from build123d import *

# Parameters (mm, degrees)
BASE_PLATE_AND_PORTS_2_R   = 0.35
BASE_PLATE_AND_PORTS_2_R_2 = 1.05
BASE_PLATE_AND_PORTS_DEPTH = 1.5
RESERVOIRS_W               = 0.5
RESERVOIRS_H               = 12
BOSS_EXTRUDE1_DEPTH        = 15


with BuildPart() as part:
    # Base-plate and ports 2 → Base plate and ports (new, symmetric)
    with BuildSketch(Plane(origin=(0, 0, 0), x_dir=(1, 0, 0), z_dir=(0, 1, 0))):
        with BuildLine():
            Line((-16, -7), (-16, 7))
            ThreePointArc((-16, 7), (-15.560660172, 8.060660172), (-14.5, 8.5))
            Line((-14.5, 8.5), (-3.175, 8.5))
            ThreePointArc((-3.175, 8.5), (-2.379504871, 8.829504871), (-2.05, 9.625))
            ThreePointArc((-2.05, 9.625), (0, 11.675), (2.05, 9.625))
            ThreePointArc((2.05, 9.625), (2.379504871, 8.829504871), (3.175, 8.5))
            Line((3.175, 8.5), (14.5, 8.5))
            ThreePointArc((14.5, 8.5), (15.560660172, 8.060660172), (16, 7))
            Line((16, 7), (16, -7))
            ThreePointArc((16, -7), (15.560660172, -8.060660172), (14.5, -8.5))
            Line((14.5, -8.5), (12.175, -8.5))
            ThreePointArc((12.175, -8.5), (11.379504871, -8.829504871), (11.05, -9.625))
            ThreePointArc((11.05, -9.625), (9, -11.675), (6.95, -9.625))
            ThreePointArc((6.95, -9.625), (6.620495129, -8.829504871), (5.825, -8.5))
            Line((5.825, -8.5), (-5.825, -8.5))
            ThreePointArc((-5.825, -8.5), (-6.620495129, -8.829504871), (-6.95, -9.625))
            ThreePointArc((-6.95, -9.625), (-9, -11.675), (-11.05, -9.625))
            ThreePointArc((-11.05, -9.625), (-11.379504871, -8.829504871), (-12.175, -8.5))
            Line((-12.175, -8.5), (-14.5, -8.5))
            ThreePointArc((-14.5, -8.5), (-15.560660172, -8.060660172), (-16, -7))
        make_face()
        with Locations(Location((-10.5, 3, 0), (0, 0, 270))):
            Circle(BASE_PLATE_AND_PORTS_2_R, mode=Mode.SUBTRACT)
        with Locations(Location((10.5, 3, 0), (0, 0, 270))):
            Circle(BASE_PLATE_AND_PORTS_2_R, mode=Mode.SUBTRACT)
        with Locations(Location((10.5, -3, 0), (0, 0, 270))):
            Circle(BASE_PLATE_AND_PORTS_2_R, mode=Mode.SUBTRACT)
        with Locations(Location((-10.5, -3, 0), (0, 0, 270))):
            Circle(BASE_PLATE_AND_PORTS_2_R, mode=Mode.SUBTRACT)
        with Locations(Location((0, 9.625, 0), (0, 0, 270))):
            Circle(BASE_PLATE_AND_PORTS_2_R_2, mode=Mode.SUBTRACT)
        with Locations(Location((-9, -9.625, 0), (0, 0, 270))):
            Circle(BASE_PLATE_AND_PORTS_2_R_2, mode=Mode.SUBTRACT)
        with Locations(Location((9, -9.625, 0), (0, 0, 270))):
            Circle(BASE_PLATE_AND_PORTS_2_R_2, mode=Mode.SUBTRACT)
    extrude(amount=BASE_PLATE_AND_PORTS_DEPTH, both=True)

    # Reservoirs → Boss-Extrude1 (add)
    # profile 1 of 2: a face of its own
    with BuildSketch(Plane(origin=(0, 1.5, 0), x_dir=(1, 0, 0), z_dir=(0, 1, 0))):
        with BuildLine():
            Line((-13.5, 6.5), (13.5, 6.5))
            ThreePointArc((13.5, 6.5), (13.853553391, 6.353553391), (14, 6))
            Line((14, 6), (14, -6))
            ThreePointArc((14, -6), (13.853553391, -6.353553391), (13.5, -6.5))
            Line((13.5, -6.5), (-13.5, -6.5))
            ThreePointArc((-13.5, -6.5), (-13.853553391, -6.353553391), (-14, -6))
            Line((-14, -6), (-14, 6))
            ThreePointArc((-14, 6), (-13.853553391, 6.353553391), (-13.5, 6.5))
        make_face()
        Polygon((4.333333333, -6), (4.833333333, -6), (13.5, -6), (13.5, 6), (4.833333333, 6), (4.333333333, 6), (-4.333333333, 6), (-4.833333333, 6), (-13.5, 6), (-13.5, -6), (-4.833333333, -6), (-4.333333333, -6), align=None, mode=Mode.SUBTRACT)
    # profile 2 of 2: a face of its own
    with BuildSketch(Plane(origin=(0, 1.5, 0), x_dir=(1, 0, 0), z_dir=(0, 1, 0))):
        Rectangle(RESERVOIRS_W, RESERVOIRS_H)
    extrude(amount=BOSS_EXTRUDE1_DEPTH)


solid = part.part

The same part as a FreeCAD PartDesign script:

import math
import FreeCAD as App
import Part
import Sketcher


def add_polygon(sketch, points):
    """Adds a closed chain of lines whose ends are joined by coincident constraints."""
    first, n = sketch.GeometryCount, len(points)
    for a, b in zip(points, points[1:] + points[:1]):
        sketch.addGeometry(Part.LineSegment(App.Vector(*a, 0), App.Vector(*b, 0)), False)
    for i in range(n):
        sketch.addConstraint(Sketcher.Constraint("Coincident", first + i, 2, first + (i + 1) % n, 1))

doc = App.newDocument("Part")
params = doc.addObject("Spreadsheet::Sheet", "Params")
for row, (alias, value) in enumerate([
    ("sketch1_diameter", "2.1 mm"),
    ("sketch1_diameter2", "0.7 mm"),
    ("sketch1_radius", "1.5 mm"),
    ("sketch1_height", "14 mm"),
    ("sketch1_radius2", "2.05 mm"),
    ("pad1_length", "3 mm"),
    ("sketch2_radius", "0.5 mm"),
    ("sketch2_width", "27 mm"),
    ("sketch2_height", "12 mm"),
    ("sketch2_width2", "13.25 mm"),
    ("pad2_length", "15 mm"),
], start=1):
    params.set(f"A{row}", alias)
    params.set(f"B{row}", "=" + value)
    params.setAlias(f"B{row}", alias)

body = doc.addObject("PartDesign::Body", "Body")

sketch1 = body.newObject("Sketcher::SketchObject", "Sketch")
sketch1.AttachmentSupport = (doc.getObject("XZ_Plane"), [""])
sketch1.MapMode = "FlatFace"
sketch1.addGeometry([
    Part.LineSegment(App.Vector(-16, -7, 0), App.Vector(-16, 7, 0)),
    Part.ArcOfCircle(Part.Circle(App.Vector(-14.5, 7, 0), App.Vector(0, 0, 1), 1.5), math.radians(90), math.radians(180)),
    Part.LineSegment(App.Vector(-14.5, 8.5, 0), App.Vector(-12.18, 8.5, 0)),
    Part.ArcOfCircle(Part.Circle(App.Vector(-12.17, 9.62, 0), App.Vector(0, 0, 1), 1.12), math.radians(-90), math.radians(0)),
    Part.ArcOfCircle(Part.Circle(App.Vector(-9, 9.62, 0), App.Vector(0, 0, 1), 2.05), math.radians(0), math.radians(180)),
    Part.ArcOfCircle(Part.Circle(App.Vector(-5.83, 9.62, 0), App.Vector(0, 0, 1), 1.12), math.radians(180), math.radians(270)),
    Part.LineSegment(App.Vector(-5.83, 8.5, 0), App.Vector(5.83, 8.5, 0)),
    Part.ArcOfCircle(Part.Circle(App.Vector(5.83, 9.62, 0), App.Vector(0, 0, 1), 1.12), math.radians(-90), math.radians(0)),
    Part.ArcOfCircle(Part.Circle(App.Vector(9, 9.62, 0), App.Vector(0, 0, 1), 2.05), math.radians(0), math.radians(180)),
    Part.ArcOfCircle(Part.Circle(App.Vector(12.17, 9.62, 0), App.Vector(0, 0, 1), 1.12), math.radians(180), math.radians(270)),
    Part.LineSegment(App.Vector(12.18, 8.5, 0), App.Vector(14.5, 8.5, 0)),
    Part.ArcOfCircle(Part.Circle(App.Vector(14.5, 7, 0), App.Vector(0, 0, 1), 1.5), math.radians(0), math.radians(90)),
    Part.LineSegment(App.Vector(16, 7, 0), App.Vector(16, -7, 0)),
    Part.ArcOfCircle(Part.Circle(App.Vector(14.5, -7, 0), App.Vector(0, 0, 1), 1.5), math.radians(-90), math.radians(0)),
    Part.LineSegment(App.Vector(14.5, -8.5, 0), App.Vector(3.17, -8.5, 0)),
    Part.ArcOfCircle(Part.Circle(App.Vector(3.17, -9.62, 0), App.Vector(0, 0, 1), 1.12), math.radians(90), math.radians(180)),
    Part.ArcOfCircle(Part.Circle(App.Vector(0, -9.62, 0), App.Vector(0, 0, 1), 2.05), math.radians(180), math.radians(360)),
    Part.ArcOfCircle(Part.Circle(App.Vector(-3.17, -9.62, 0), App.Vector(0, 0, 1), 1.12), math.radians(0), math.radians(90)),
    Part.LineSegment(App.Vector(-3.17, -8.5, 0), App.Vector(-14.5, -8.5, 0)),
    Part.ArcOfCircle(Part.Circle(App.Vector(-14.5, -7, 0), App.Vector(0, 0, 1), 1.5), math.radians(180), math.radians(270)),
    Part.Circle(App.Vector(9, 9.62, 0), App.Vector(0, 0, 1), 1.05),
    Part.Circle(App.Vector(10.5, 3, 0), App.Vector(0, 0, 1), 0.35),
    Part.Circle(App.Vector(-9, 9.62, 0), App.Vector(0, 0, 1), 1.05),
    Part.Circle(App.Vector(-10.5, 3, 0), App.Vector(0, 0, 1), 0.35),
    Part.Circle(App.Vector(10.5, -3, 0), App.Vector(0, 0, 1), 0.35),
    Part.Circle(App.Vector(-10.5, -3, 0), App.Vector(0, 0, 1), 0.35),
    Part.Circle(App.Vector(0, -9.62, 0), App.Vector(0, 0, 1), 1.05),
], False)
sketch1.addConstraint([
    Sketcher.Constraint("Tangent", 0, 2, 1, 2),
    Sketcher.Constraint("Tangent", 1, 1, 2, 1),
    Sketcher.Constraint("Tangent", 2, 2, 3, 1),
    Sketcher.Constraint("Tangent", 3, 2, 4, 2),
    Sketcher.Constraint("Tangent", 4, 1, 5, 1),
    Sketcher.Constraint("Tangent", 5, 2, 6, 1),
    Sketcher.Constraint("Tangent", 6, 2, 7, 1),
    Sketcher.Constraint("Tangent", 7, 2, 8, 2),
    Sketcher.Constraint("Tangent", 8, 1, 9, 1),
    Sketcher.Constraint("Tangent", 9, 2, 10, 1),
    Sketcher.Constraint("Tangent", 10, 2, 11, 2),
    Sketcher.Constraint("Tangent", 11, 1, 12, 1),
    Sketcher.Constraint("Tangent", 12, 2, 13, 2),
    Sketcher.Constraint("Tangent", 13, 1, 14, 1),
    Sketcher.Constraint("Tangent", 14, 2, 15, 1),
    Sketcher.Constraint("Tangent", 15, 2, 16, 2),
    Sketcher.Constraint("Tangent", 16, 1, 17, 1),
    Sketcher.Constraint("Tangent", 17, 2, 18, 1),
    Sketcher.Constraint("Tangent", 18, 2, 19, 2),
    Sketcher.Constraint("Tangent", 19, 1, 0, 1),
    Sketcher.Constraint("Vertical", 0),
    Sketcher.Constraint("Horizontal", 2),
    Sketcher.Constraint("Horizontal", 6),
    Sketcher.Constraint("Horizontal", 10),
    Sketcher.Constraint("Vertical", 12),
    Sketcher.Constraint("Horizontal", 14),
    Sketcher.Constraint("Horizontal", 18),
    Sketcher.Constraint("Coincident", 20, 3, 8, 3),
    Sketcher.Constraint("Coincident", 22, 3, 4, 3),
    Sketcher.Constraint("Coincident", 26, 3, 16, 3),
    Sketcher.Constraint("Equal", 3, 5),
    Sketcher.Constraint("Equal", 5, 7),
    Sketcher.Constraint("Equal", 4, 8),
    Sketcher.Constraint("Equal", 7, 9),
    Sketcher.Constraint("Equal", 1, 11),
    Sketcher.Constraint("Equal", 11, 13),
    Sketcher.Constraint("Equal", 9, 15),
    Sketcher.Constraint("Equal", 8, 16),
    Sketcher.Constraint("Equal", 15, 17),
    Sketcher.Constraint("Equal", 13, 19),
    Sketcher.Constraint("Equal", 20, 22),
    Sketcher.Constraint("Equal", 21, 23),
    Sketcher.Constraint("Equal", 23, 24),
    Sketcher.Constraint("Equal", 24, 25),
    Sketcher.Constraint("Equal", 22, 26),
    Sketcher.Constraint("Symmetric", 1, 3, 13, 3, -1, 1),
    Sketcher.Constraint("Symmetric", 23, 3, 24, 3, -1, 1),
    Sketcher.Constraint("Symmetric", 21, 3, 25, 3, -1, 1),
    Sketcher.Constraint("Symmetric", 4, 3, 8, 3, -2),
    Sketcher.Constraint("Symmetric", 15, 3, 17, 3, -2),
    Sketcher.Constraint("Symmetric", 21, 3, 23, 3, -2),
    Sketcher.Constraint("Horizontal", 3, 3, 4, 3),
    Sketcher.Constraint("Horizontal", 4, 3, 5, 3),
    Sketcher.Constraint("Horizontal", 8, 3, 9, 3),
    Sketcher.Constraint("Horizontal", 15, 3, 16, 3),
    Sketcher.Constraint("Diameter", 20, 2.1),
    Sketcher.Constraint("Diameter", 21, 0.7),
    Sketcher.Constraint("Radius", 1, 1.5),
    Sketcher.Constraint("DistanceY", 0, 1, 0, 2, 14.0),
    Sketcher.Constraint("Radius", 4, 2.05),
    Sketcher.Constraint("DistanceX", 4, 3, -1, 1, 9.0),
    Sketcher.Constraint("DistanceY", -1, 1, 21, 3, 3.0),
    Sketcher.Constraint("DistanceX", 0, 2, -1, 1, 16.0),
    Sketcher.Constraint("Radius", 3, 1.125),
    Sketcher.Constraint("DistanceX", 21, 3, 11, 3, 4.0),
])
sketch1.setExpression("Constraints[55]", "Params.sketch1_diameter")
sketch1.setExpression("Constraints[56]", "Params.sketch1_diameter2")
sketch1.setExpression("Constraints[57]", "Params.sketch1_radius")
sketch1.setExpression("Constraints[58]", "Params.sketch1_height")
sketch1.setExpression("Constraints[59]", "Params.sketch1_radius2")
pad1 = body.newObject("PartDesign::Pad", "Pad")
pad1.Profile = sketch1
pad1.setExpression("Length", "Params.pad1_length")
pad1.Midplane = True

sketch2 = body.newObject("Sketcher::SketchObject", "Sketch001")
sketch2.AttachmentSupport = (doc.getObject("XZ_Plane"), [""])
sketch2.MapMode = "FlatFace"
sketch2.AttachmentOffset = App.Placement(App.Vector(0, 0, -1.5), App.Rotation())
sketch2.addGeometry(Part.LineSegment(App.Vector(13.5, -6.5, 0), App.Vector(-13.5, -6.5, 0)), False)
sketch2.addGeometry(Part.ArcOfCircle(Part.Circle(App.Vector(-13.5, -6, 0), App.Vector(0, 0, 1), 0.5), math.radians(180), math.radians(270)), False)
sketch2.addGeometry(Part.LineSegment(App.Vector(-14, -6, 0), App.Vector(-14, 6, 0)), False)
sketch2.addGeometry(Part.ArcOfCircle(Part.Circle(App.Vector(-13.5, 6, 0), App.Vector(0, 0, 1), 0.5), math.radians(90), math.radians(180)), False)
sketch2.addGeometry(Part.LineSegment(App.Vector(-13.5, 6.5, 0), App.Vector(13.5, 6.5, 0)), False)
sketch2.addGeometry(Part.ArcOfCircle(Part.Circle(App.Vector(13.5, 6, 0), App.Vector(0, 0, 1), 0.5), math.radians(0), math.radians(90)), False)
sketch2.addGeometry(Part.LineSegment(App.Vector(14, 6, 0), App.Vector(14, -6, 0)), False)
sketch2.addGeometry(Part.ArcOfCircle(Part.Circle(App.Vector(13.5, -6, 0), App.Vector(0, 0, 1), 0.5), math.radians(-90), math.radians(0)), False)
add_polygon(sketch2, [(-13.5, 6), (-13.5, -6), (-0.25, -6), (-0.25, 6)])
add_polygon(sketch2, [(13.5, 6), (0.25, 6), (0.25, -6), (13.5, -6)])
sketch2.addConstraint([
    Sketcher.Constraint("Tangent", 0, 2, 1, 2),
    Sketcher.Constraint("Tangent", 1, 1, 2, 1),
    Sketcher.Constraint("Tangent", 2, 2, 3, 2),
    Sketcher.Constraint("Tangent", 3, 1, 4, 1),
    Sketcher.Constraint("Tangent", 4, 2, 5, 2),
    Sketcher.Constraint("Tangent", 5, 1, 6, 1),
    Sketcher.Constraint("Tangent", 6, 2, 7, 2),
    Sketcher.Constraint("Tangent", 7, 1, 0, 1),
    Sketcher.Constraint("Horizontal", 0),
    Sketcher.Constraint("Vertical", 2),
    Sketcher.Constraint("Horizontal", 4),
    Sketcher.Constraint("Vertical", 6),
    Sketcher.Constraint("Vertical", 8),
    Sketcher.Constraint("Horizontal", 9),
    Sketcher.Constraint("Vertical", 10),
    Sketcher.Constraint("Horizontal", 11),
    Sketcher.Constraint("Horizontal", 12),
    Sketcher.Constraint("Vertical", 13),
    Sketcher.Constraint("Horizontal", 14),
    Sketcher.Constraint("Vertical", 15),
    Sketcher.Constraint("Coincident", 8, 2, 1, 3),
    Sketcher.Constraint("Coincident", 11, 2, 3, 3),
    Sketcher.Constraint("Coincident", 14, 2, 7, 3),
    Sketcher.Constraint("Coincident", 15, 2, 5, 3),
    Sketcher.Constraint("Equal", 3, 5),
    Sketcher.Constraint("Symmetric", 1, 3, 5, 3, -1, 1),
    Sketcher.Constraint("Equal", 11, 12),
    Sketcher.Constraint("Radius", 1, 0.5),
    Sketcher.Constraint("DistanceX", 0, 2, 0, 1, 27.0),
    Sketcher.Constraint("DistanceY", 2, 1, 2, 2, 12.0),
    Sketcher.Constraint("DistanceX", 9, 1, 9, 2, 13.25),
])
sketch2.setExpression("Constraints[35]", "Params.sketch2_radius")
sketch2.setExpression("Constraints[36]", "Params.sketch2_width")
sketch2.setExpression("Constraints[37]", "Params.sketch2_height")
sketch2.setExpression("Constraints[38]", "Params.sketch2_width2")
pad2 = body.newObject("PartDesign::Pad", "Pad001")
pad2.Profile = sketch2
pad2.setExpression("Length", "Params.pad2_length")
pad2.Reversed = True

doc.recompute()
